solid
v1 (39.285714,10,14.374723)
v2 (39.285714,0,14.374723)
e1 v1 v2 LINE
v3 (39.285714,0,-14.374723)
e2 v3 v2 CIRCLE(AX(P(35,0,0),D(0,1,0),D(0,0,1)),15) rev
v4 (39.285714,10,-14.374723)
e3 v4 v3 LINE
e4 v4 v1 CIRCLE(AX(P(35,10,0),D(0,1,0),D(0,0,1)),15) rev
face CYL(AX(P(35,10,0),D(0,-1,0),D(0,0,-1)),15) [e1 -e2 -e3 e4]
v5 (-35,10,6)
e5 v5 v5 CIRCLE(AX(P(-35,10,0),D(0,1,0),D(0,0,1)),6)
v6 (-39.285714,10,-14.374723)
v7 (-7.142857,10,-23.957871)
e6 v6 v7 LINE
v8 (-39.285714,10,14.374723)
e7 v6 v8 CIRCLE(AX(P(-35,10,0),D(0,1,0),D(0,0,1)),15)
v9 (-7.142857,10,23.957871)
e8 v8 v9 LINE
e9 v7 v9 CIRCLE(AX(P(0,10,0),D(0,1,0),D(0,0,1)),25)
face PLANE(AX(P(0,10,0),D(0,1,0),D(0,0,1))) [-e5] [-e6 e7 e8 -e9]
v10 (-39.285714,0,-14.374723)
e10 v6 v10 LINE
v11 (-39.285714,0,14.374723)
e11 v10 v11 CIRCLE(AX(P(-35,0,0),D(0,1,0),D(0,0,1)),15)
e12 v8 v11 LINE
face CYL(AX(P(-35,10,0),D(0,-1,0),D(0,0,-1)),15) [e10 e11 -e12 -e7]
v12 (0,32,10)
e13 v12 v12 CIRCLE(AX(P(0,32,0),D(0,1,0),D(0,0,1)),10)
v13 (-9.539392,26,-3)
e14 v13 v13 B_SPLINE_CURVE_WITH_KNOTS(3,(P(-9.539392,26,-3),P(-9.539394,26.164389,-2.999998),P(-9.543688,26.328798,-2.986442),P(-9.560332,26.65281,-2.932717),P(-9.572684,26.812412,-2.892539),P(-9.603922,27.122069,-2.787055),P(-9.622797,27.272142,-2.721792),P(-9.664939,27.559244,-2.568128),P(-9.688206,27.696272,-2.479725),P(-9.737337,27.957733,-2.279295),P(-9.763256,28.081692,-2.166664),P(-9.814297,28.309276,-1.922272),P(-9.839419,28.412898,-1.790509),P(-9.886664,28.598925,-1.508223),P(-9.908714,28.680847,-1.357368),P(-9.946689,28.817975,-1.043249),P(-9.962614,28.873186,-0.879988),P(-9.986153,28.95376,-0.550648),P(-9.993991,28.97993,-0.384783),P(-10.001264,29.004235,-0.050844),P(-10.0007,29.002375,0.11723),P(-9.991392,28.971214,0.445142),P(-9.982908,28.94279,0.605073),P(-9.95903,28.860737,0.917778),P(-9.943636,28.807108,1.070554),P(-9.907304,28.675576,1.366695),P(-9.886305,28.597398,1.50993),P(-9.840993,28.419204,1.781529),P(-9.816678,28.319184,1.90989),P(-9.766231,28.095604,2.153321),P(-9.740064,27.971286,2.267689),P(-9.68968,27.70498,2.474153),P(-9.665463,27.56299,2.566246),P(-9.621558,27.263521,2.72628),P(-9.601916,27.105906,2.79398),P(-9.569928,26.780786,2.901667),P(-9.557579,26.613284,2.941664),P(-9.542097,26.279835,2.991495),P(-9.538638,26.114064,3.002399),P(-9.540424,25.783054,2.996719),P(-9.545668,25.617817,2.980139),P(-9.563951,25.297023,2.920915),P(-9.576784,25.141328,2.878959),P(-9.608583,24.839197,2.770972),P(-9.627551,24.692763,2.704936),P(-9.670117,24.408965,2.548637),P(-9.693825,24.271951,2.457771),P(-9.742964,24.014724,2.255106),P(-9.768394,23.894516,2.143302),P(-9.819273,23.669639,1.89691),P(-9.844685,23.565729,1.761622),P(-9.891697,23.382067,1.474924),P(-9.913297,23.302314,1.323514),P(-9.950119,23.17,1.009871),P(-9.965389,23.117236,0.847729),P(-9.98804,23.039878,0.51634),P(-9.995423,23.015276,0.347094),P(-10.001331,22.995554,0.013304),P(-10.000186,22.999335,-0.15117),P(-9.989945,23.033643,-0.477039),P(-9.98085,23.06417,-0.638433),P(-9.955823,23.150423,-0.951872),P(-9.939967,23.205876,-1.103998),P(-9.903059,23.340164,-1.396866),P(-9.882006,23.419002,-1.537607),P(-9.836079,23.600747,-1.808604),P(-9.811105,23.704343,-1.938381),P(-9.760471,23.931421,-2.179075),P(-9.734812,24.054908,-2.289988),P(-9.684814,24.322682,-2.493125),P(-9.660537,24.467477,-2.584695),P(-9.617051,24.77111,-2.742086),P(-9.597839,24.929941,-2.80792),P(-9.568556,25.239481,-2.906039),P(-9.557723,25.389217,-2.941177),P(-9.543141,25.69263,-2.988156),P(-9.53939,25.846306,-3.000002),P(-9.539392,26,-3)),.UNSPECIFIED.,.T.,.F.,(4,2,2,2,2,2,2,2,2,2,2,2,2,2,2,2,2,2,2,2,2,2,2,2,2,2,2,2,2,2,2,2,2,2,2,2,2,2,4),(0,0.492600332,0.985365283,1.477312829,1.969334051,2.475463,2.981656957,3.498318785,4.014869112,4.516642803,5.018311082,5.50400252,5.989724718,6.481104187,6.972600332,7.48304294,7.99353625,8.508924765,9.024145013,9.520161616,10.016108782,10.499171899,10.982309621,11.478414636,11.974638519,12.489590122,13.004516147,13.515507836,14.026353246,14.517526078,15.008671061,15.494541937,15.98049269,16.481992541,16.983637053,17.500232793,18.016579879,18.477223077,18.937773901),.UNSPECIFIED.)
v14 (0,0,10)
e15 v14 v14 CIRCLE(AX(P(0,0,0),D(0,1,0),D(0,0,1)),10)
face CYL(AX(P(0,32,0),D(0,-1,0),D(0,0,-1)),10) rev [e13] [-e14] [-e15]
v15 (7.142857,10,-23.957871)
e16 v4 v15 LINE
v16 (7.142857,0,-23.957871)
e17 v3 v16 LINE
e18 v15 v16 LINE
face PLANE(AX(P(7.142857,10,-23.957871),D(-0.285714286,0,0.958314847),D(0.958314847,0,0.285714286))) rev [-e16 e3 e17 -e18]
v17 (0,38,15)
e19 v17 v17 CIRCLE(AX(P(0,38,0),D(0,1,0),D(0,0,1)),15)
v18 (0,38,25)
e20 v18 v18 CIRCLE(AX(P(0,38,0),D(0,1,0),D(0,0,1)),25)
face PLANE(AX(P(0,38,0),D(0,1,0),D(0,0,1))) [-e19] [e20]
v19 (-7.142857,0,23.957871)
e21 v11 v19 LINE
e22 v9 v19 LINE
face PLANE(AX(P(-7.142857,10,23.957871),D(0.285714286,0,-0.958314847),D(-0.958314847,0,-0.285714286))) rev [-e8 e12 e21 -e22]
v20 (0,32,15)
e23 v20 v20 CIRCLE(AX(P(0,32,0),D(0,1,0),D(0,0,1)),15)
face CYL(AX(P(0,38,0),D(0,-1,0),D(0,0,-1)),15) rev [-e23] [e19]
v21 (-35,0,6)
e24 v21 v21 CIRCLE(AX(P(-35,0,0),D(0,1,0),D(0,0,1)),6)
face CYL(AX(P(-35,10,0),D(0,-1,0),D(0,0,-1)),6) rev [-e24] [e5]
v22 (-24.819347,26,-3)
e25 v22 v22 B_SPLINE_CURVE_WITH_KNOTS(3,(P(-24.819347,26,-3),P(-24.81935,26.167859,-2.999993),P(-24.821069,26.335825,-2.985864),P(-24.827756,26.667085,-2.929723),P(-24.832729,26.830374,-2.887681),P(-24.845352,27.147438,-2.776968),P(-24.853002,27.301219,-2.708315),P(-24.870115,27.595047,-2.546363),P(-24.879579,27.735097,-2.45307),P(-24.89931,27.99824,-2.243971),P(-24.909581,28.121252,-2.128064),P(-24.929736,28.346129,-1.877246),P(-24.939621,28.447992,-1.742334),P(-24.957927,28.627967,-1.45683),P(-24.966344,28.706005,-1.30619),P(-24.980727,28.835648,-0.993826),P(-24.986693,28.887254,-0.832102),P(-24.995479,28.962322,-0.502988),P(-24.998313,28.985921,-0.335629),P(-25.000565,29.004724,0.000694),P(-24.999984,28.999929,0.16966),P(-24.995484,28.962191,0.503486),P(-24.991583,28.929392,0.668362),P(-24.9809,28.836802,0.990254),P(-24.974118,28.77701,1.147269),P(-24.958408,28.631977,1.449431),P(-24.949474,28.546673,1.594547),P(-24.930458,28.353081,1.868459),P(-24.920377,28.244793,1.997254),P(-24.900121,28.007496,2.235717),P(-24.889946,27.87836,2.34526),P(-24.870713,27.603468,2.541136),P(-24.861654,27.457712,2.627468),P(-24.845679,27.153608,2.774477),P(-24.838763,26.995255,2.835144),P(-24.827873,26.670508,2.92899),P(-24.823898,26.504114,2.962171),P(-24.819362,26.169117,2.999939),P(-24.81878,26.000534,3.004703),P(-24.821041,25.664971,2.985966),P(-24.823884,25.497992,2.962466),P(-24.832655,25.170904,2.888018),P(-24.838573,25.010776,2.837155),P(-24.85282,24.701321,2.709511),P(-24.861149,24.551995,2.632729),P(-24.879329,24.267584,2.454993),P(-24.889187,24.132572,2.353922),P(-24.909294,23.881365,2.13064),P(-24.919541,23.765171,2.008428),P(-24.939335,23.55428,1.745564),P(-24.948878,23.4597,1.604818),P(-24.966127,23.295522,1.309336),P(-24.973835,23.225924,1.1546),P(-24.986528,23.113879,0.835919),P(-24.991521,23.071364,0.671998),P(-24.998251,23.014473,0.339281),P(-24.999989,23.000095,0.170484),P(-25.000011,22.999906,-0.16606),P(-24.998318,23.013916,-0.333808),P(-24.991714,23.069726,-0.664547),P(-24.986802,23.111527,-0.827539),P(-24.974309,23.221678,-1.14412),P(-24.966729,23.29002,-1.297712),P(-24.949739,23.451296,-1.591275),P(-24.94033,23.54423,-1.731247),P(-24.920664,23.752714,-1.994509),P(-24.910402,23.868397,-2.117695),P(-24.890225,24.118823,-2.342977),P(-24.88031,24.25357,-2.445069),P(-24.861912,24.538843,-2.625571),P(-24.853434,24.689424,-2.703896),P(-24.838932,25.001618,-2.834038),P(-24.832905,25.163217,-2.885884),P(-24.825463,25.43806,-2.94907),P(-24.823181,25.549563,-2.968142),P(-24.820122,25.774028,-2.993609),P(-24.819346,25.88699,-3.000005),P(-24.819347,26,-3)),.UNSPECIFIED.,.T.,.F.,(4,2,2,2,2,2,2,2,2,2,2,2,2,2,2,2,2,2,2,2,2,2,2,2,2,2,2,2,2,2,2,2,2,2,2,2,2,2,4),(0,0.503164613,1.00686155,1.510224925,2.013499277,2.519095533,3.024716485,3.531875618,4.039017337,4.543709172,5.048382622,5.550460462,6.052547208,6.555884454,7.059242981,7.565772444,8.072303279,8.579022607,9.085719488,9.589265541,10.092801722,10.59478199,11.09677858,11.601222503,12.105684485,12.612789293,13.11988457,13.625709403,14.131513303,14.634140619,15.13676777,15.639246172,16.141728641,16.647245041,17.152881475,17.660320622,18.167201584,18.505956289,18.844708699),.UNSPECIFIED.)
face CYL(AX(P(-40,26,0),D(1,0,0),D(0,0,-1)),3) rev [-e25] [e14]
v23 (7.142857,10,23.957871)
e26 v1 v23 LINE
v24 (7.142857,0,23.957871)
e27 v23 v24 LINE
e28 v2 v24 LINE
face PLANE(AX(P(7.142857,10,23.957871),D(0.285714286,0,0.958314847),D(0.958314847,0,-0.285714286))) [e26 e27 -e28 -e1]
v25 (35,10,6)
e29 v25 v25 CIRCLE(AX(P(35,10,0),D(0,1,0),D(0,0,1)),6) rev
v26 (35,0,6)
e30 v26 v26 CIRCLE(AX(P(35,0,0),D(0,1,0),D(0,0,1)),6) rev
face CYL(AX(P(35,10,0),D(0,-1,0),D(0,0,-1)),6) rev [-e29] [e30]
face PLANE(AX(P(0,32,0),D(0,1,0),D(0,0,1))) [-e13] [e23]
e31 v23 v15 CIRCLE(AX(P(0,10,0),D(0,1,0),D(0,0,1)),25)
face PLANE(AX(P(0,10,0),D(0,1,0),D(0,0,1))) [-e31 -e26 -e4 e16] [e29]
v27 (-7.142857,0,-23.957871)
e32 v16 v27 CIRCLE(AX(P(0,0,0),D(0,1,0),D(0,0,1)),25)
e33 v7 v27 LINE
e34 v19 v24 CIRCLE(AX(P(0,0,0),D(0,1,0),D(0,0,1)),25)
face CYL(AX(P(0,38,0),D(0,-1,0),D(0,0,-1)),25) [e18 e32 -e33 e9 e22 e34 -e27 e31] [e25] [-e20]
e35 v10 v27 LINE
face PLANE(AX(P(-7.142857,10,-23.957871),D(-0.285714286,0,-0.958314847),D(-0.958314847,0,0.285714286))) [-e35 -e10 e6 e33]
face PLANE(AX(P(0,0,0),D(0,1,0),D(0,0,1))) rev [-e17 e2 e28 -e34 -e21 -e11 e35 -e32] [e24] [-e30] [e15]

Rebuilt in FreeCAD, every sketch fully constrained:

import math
import FreeCAD as App
import Part
import Sketcher
from FreeCAD import Vector
Q = App.Units.Quantity

doc = App.newDocument("Part")
body = doc.addObject("PartDesign::Body", "Body")

# Sketch on XZ plane
sketch1 = body.newObject("Sketcher::SketchObject", "Sketch")
sketch1.AttachmentSupport = (doc.getObject("XZ_Plane"), [""])
sketch1.MapMode = "FlatFace"
sketch1.addGeometry([
    Part.LineSegment(Vector(-7, -24, 0), Vector(-39, -14, 0)),  # 0
    Part.ArcOfCircle(Part.Circle(Vector(-35, 0, 0), Vector(0, 0, 1), 15), math.radians(107), math.radians(253)),  # 1
    Part.LineSegment(Vector(-39, 14, 0), Vector(-7, 24, 0)),  # 2
    Part.ArcOfCircle(Part.Circle(Vector(0, 0, 0), Vector(0, 0, 1), 25), math.radians(107), math.radians(253)),  # 3
    Part.Circle(Vector(-35, 0, 0), Vector(0, 0, 1), 6),  # 4
], False)
sketch1.addConstraint([
    Sketcher.Constraint("Tangent", 0, 2, 1, 2),
    Sketcher.Constraint("Tangent", 1, 1, 2, 1),
    Sketcher.Constraint("Tangent", 2, 2, 3, 1),
    Sketcher.Constraint("Tangent", 3, 2, 0, 1),
    Sketcher.Constraint("Coincident", 3, 3, -1, 1),
    Sketcher.Constraint("Coincident", 4, 3, 1, 3),
    Sketcher.Constraint("PointOnObject", 1, 3, -1),
    Sketcher.Constraint("Diameter", 4, Q("12 mm")),
    Sketcher.Constraint("Radius", 1, Q("15 mm")),
    Sketcher.Constraint("Radius", 3, Q("25 mm")),
    Sketcher.Constraint("DistanceX", 1, 3, -1, 1, Q("35 mm")),
])
pad1 = body.newObject("PartDesign::Pad", "Pad")
pad1.Profile = sketch1
pad1.Length = 10
pad1.Reversed = True
body2 = doc.addObject("PartDesign::Body", "Body001")

# Sketch on XZ plane
sketch2 = body2.newObject("Sketcher::SketchObject", "Sketch001")
sketch2.AttachmentSupport = (doc.getObject("XZ_Plane001"), [""])
sketch2.MapMode = "FlatFace"
sketch2.addGeometry([
    Part.LineSegment(Vector(39, -14, 0), Vector(7, -24, 0)),  # 0
    Part.ArcOfCircle(Part.Circle(Vector(0, 0, 0), Vector(0, 0, 1), 25), math.radians(-73), math.radians(0)),  # 1
    Part.ArcOfCircle(Part.Circle(Vector(0, 0, 0), Vector(0, 0, 1), 25), math.radians(0), math.radians(73)),  # 2
    Part.LineSegment(Vector(7, 24, 0), Vector(39, 14, 0)),  # 3
    Part.ArcOfCircle(Part.Circle(Vector(35, 0, 0), Vector(0, 0, 1), 15), math.radians(-73), math.radians(73)),  # 4
    Part.Circle(Vector(35, 0, 0), Vector(0, 0, 1), 6),  # 5
], False)
sketch2.addConstraint([
    Sketcher.Constraint("Tangent", 0, 2, 1, 1),
    Sketcher.Constraint("Tangent", 1, 2, 2, 1),
    Sketcher.Constraint("Tangent", 2, 2, 3, 1),
    Sketcher.Constraint("Tangent", 3, 2, 4, 2),
    Sketcher.Constraint("Tangent", 4, 1, 0, 1),
    Sketcher.Constraint("Coincident", 1, 3, -1, 1),
    Sketcher.Constraint("Coincident", 5, 3, 4, 3),
    Sketcher.Constraint("Equal", 1, 2),
    Sketcher.Constraint("PointOnObject", 4, 3, -1),
    Sketcher.Constraint("PointOnObject", 1, 2, -1),
    Sketcher.Constraint("Diameter", 5, Q("12 mm")),
    Sketcher.Constraint("Radius", 1, Q("25 mm")),
    Sketcher.Constraint("Radius", 4, Q("15 mm")),
    Sketcher.Constraint("DistanceX", -1, 1, 4, 3, Q("35 mm")),
])
pad2 = body2.newObject("PartDesign::Pad", "Pad001")
pad2.Profile = sketch2
pad2.Length = 10
pad2.Reversed = True
body.AllowCompound = True
doc.recompute()

boolean = body.newObject("PartDesign::Boolean", "Boolean")
boolean.Type = "Fuse"
boolean.addObjects([body2])

# Sketch on XZ plane
sketch3 = body.newObject("Sketcher::SketchObject", "Sketch002")
sketch3.AttachmentSupport = (doc.getObject("XZ_Plane"), [""])
sketch3.MapMode = "FlatFace"
sketch3.addGeometry([
    Part.Circle(Vector(0, 0, 0), Vector(0, 0, 1), 25),
    Part.Circle(Vector(0, 0, 0), Vector(0, 0, 1), 15),
], False)
sketch3.addConstraint([
    Sketcher.Constraint("Coincident", 0, 3, -1, 1),
    Sketcher.Constraint("Coincident", 1, 3, -1, 1),
    Sketcher.Constraint("Diameter", 0, Q("50 mm")),
    Sketcher.Constraint("Diameter", 1, Q("30 mm")),
])
pad3 = body.newObject("PartDesign::Pad", "Pad002")
pad3.Profile = sketch3
pad3.Length = 38
pad3.Reversed = True

# Sketch on XZ plane
sketch4 = body.newObject("Sketcher::SketchObject", "Sketch003")
sketch4.AttachmentSupport = (doc.getObject("XZ_Plane"), [""])
sketch4.MapMode = "FlatFace"
sketch4.addGeometry([
    Part.Circle(Vector(0, 0, 0), Vector(0, 0, 1), 15),
    Part.Circle(Vector(0, 0, 0), Vector(0, 0, 1), 10),
], False)
sketch4.addConstraint([
    Sketcher.Constraint("Coincident", 0, 3, -1, 1),
    Sketcher.Constraint("Coincident", 1, 3, -1, 1),
    Sketcher.Constraint("Diameter", 0, Q("30 mm")),
    Sketcher.Constraint("Diameter", 1, Q("20 mm")),
])
pad4 = body.newObject("PartDesign::Pad", "Pad003")
pad4.Profile = sketch4
pad4.Length = 32
pad4.Reversed = True

# Sketch on YZ plane
sketch5 = body.newObject("Sketcher::SketchObject", "Sketch004")
sketch5.AttachmentSupport = (doc.getObject("YZ_Plane"), [""])
sketch5.MapMode = "FlatFace"
sketch5.addGeometry(Part.Circle(Vector(26, 0, 0), Vector(0, 0, 1), 3), False)
sketch5.addConstraint([
    Sketcher.Constraint("PointOnObject", 0, 3, -1),
    Sketcher.Constraint("Diameter", 0, Q("6 mm")),
    Sketcher.Constraint("DistanceX", -1, 1, 0, 3, Q("26 mm")),
])
pocket1 = body.newObject("PartDesign::Pocket", "Pocket")
pocket1.Profile = sketch5
pocket1.Length = 40

doc.recompute()
